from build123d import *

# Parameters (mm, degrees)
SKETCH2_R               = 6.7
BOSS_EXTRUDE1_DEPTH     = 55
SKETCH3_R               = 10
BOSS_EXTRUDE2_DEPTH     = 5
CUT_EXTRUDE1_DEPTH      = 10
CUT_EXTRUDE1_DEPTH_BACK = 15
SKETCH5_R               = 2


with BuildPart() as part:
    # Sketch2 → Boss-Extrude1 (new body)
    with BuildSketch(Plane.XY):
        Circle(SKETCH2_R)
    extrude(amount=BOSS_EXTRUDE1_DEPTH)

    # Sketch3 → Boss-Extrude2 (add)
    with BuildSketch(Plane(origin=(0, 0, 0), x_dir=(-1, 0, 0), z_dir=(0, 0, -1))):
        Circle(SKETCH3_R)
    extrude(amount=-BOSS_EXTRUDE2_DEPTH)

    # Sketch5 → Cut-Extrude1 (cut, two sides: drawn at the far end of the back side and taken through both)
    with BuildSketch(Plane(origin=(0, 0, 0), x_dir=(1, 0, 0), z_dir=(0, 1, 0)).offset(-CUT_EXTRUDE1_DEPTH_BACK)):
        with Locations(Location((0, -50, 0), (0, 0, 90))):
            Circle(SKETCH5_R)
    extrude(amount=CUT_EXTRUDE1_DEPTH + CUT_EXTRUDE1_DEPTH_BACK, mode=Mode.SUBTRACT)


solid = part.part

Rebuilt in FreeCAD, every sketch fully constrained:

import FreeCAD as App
import Part
import Sketcher
from FreeCAD import Vector

doc = App.newDocument("Part")
body = doc.addObject("PartDesign::Body", "Body")

sketch1 = body.newObject("Sketcher::SketchObject", "Sketch")
sketch1.AttachmentSupport = (doc.getObject("XY_Plane"), [""])
sketch1.MapMode = "FlatFace"
sketch1.addGeometry(Part.Circle(Vector(0, 0, 0), Vector(0, 0, 1), 6.7), False)
sketch1.addConstraint([
    Sketcher.Constraint("Coincident", 0, 3, -1, 1),
    Sketcher.Constraint("Diameter", 0, 13.4),
])
pad1 = body.newObject("PartDesign::Pad", "Pad")
pad1.Profile = sketch1
pad1.Length = 55

sketch2 = body.newObject("Sketcher::SketchObject", "Sketch001")
sketch2.AttachmentSupport = (doc.getObject("XY_Plane"), [""])
sketch2.MapMode = "FlatFace"
sketch2.addGeometry(Part.Circle(Vector(0, 0, 0), Vector(0, 0, 1), 10), False)
sketch2.addConstraint([
    Sketcher.Constraint("Coincident", 0, 3, -1, 1),
    Sketcher.Constraint("Diameter", 0, 20.0),
])
pad2 = body.newObject("PartDesign::Pad", "Pad001")
pad2.Profile = sketch2
pad2.Length = 5

sketch3 = body.newObject("Sketcher::SketchObject", "Sketch002")
sketch3.AttachmentSupport = (doc.getObject("XZ_Plane"), [""])
sketch3.MapMode = "FlatFace"
sketch3.addGeometry(Part.Circle(Vector(0, 50, 0), Vector(0, 0, 1), 2), False)
sketch3.addConstraint([
    Sketcher.Constraint("PointOnObject", 0, 3, -2),
    Sketcher.Constraint("Diameter", 0, 4.0),
    Sketcher.Constraint("DistanceY", -1, 1, 0, 3, 50.0),
])
pocket1 = body.newObject("PartDesign::Pocket", "Pocket")
pocket1.Profile = sketch3
pocket1.Type = "ThroughAll"
pocket1.Midplane = True

doc.recompute()
